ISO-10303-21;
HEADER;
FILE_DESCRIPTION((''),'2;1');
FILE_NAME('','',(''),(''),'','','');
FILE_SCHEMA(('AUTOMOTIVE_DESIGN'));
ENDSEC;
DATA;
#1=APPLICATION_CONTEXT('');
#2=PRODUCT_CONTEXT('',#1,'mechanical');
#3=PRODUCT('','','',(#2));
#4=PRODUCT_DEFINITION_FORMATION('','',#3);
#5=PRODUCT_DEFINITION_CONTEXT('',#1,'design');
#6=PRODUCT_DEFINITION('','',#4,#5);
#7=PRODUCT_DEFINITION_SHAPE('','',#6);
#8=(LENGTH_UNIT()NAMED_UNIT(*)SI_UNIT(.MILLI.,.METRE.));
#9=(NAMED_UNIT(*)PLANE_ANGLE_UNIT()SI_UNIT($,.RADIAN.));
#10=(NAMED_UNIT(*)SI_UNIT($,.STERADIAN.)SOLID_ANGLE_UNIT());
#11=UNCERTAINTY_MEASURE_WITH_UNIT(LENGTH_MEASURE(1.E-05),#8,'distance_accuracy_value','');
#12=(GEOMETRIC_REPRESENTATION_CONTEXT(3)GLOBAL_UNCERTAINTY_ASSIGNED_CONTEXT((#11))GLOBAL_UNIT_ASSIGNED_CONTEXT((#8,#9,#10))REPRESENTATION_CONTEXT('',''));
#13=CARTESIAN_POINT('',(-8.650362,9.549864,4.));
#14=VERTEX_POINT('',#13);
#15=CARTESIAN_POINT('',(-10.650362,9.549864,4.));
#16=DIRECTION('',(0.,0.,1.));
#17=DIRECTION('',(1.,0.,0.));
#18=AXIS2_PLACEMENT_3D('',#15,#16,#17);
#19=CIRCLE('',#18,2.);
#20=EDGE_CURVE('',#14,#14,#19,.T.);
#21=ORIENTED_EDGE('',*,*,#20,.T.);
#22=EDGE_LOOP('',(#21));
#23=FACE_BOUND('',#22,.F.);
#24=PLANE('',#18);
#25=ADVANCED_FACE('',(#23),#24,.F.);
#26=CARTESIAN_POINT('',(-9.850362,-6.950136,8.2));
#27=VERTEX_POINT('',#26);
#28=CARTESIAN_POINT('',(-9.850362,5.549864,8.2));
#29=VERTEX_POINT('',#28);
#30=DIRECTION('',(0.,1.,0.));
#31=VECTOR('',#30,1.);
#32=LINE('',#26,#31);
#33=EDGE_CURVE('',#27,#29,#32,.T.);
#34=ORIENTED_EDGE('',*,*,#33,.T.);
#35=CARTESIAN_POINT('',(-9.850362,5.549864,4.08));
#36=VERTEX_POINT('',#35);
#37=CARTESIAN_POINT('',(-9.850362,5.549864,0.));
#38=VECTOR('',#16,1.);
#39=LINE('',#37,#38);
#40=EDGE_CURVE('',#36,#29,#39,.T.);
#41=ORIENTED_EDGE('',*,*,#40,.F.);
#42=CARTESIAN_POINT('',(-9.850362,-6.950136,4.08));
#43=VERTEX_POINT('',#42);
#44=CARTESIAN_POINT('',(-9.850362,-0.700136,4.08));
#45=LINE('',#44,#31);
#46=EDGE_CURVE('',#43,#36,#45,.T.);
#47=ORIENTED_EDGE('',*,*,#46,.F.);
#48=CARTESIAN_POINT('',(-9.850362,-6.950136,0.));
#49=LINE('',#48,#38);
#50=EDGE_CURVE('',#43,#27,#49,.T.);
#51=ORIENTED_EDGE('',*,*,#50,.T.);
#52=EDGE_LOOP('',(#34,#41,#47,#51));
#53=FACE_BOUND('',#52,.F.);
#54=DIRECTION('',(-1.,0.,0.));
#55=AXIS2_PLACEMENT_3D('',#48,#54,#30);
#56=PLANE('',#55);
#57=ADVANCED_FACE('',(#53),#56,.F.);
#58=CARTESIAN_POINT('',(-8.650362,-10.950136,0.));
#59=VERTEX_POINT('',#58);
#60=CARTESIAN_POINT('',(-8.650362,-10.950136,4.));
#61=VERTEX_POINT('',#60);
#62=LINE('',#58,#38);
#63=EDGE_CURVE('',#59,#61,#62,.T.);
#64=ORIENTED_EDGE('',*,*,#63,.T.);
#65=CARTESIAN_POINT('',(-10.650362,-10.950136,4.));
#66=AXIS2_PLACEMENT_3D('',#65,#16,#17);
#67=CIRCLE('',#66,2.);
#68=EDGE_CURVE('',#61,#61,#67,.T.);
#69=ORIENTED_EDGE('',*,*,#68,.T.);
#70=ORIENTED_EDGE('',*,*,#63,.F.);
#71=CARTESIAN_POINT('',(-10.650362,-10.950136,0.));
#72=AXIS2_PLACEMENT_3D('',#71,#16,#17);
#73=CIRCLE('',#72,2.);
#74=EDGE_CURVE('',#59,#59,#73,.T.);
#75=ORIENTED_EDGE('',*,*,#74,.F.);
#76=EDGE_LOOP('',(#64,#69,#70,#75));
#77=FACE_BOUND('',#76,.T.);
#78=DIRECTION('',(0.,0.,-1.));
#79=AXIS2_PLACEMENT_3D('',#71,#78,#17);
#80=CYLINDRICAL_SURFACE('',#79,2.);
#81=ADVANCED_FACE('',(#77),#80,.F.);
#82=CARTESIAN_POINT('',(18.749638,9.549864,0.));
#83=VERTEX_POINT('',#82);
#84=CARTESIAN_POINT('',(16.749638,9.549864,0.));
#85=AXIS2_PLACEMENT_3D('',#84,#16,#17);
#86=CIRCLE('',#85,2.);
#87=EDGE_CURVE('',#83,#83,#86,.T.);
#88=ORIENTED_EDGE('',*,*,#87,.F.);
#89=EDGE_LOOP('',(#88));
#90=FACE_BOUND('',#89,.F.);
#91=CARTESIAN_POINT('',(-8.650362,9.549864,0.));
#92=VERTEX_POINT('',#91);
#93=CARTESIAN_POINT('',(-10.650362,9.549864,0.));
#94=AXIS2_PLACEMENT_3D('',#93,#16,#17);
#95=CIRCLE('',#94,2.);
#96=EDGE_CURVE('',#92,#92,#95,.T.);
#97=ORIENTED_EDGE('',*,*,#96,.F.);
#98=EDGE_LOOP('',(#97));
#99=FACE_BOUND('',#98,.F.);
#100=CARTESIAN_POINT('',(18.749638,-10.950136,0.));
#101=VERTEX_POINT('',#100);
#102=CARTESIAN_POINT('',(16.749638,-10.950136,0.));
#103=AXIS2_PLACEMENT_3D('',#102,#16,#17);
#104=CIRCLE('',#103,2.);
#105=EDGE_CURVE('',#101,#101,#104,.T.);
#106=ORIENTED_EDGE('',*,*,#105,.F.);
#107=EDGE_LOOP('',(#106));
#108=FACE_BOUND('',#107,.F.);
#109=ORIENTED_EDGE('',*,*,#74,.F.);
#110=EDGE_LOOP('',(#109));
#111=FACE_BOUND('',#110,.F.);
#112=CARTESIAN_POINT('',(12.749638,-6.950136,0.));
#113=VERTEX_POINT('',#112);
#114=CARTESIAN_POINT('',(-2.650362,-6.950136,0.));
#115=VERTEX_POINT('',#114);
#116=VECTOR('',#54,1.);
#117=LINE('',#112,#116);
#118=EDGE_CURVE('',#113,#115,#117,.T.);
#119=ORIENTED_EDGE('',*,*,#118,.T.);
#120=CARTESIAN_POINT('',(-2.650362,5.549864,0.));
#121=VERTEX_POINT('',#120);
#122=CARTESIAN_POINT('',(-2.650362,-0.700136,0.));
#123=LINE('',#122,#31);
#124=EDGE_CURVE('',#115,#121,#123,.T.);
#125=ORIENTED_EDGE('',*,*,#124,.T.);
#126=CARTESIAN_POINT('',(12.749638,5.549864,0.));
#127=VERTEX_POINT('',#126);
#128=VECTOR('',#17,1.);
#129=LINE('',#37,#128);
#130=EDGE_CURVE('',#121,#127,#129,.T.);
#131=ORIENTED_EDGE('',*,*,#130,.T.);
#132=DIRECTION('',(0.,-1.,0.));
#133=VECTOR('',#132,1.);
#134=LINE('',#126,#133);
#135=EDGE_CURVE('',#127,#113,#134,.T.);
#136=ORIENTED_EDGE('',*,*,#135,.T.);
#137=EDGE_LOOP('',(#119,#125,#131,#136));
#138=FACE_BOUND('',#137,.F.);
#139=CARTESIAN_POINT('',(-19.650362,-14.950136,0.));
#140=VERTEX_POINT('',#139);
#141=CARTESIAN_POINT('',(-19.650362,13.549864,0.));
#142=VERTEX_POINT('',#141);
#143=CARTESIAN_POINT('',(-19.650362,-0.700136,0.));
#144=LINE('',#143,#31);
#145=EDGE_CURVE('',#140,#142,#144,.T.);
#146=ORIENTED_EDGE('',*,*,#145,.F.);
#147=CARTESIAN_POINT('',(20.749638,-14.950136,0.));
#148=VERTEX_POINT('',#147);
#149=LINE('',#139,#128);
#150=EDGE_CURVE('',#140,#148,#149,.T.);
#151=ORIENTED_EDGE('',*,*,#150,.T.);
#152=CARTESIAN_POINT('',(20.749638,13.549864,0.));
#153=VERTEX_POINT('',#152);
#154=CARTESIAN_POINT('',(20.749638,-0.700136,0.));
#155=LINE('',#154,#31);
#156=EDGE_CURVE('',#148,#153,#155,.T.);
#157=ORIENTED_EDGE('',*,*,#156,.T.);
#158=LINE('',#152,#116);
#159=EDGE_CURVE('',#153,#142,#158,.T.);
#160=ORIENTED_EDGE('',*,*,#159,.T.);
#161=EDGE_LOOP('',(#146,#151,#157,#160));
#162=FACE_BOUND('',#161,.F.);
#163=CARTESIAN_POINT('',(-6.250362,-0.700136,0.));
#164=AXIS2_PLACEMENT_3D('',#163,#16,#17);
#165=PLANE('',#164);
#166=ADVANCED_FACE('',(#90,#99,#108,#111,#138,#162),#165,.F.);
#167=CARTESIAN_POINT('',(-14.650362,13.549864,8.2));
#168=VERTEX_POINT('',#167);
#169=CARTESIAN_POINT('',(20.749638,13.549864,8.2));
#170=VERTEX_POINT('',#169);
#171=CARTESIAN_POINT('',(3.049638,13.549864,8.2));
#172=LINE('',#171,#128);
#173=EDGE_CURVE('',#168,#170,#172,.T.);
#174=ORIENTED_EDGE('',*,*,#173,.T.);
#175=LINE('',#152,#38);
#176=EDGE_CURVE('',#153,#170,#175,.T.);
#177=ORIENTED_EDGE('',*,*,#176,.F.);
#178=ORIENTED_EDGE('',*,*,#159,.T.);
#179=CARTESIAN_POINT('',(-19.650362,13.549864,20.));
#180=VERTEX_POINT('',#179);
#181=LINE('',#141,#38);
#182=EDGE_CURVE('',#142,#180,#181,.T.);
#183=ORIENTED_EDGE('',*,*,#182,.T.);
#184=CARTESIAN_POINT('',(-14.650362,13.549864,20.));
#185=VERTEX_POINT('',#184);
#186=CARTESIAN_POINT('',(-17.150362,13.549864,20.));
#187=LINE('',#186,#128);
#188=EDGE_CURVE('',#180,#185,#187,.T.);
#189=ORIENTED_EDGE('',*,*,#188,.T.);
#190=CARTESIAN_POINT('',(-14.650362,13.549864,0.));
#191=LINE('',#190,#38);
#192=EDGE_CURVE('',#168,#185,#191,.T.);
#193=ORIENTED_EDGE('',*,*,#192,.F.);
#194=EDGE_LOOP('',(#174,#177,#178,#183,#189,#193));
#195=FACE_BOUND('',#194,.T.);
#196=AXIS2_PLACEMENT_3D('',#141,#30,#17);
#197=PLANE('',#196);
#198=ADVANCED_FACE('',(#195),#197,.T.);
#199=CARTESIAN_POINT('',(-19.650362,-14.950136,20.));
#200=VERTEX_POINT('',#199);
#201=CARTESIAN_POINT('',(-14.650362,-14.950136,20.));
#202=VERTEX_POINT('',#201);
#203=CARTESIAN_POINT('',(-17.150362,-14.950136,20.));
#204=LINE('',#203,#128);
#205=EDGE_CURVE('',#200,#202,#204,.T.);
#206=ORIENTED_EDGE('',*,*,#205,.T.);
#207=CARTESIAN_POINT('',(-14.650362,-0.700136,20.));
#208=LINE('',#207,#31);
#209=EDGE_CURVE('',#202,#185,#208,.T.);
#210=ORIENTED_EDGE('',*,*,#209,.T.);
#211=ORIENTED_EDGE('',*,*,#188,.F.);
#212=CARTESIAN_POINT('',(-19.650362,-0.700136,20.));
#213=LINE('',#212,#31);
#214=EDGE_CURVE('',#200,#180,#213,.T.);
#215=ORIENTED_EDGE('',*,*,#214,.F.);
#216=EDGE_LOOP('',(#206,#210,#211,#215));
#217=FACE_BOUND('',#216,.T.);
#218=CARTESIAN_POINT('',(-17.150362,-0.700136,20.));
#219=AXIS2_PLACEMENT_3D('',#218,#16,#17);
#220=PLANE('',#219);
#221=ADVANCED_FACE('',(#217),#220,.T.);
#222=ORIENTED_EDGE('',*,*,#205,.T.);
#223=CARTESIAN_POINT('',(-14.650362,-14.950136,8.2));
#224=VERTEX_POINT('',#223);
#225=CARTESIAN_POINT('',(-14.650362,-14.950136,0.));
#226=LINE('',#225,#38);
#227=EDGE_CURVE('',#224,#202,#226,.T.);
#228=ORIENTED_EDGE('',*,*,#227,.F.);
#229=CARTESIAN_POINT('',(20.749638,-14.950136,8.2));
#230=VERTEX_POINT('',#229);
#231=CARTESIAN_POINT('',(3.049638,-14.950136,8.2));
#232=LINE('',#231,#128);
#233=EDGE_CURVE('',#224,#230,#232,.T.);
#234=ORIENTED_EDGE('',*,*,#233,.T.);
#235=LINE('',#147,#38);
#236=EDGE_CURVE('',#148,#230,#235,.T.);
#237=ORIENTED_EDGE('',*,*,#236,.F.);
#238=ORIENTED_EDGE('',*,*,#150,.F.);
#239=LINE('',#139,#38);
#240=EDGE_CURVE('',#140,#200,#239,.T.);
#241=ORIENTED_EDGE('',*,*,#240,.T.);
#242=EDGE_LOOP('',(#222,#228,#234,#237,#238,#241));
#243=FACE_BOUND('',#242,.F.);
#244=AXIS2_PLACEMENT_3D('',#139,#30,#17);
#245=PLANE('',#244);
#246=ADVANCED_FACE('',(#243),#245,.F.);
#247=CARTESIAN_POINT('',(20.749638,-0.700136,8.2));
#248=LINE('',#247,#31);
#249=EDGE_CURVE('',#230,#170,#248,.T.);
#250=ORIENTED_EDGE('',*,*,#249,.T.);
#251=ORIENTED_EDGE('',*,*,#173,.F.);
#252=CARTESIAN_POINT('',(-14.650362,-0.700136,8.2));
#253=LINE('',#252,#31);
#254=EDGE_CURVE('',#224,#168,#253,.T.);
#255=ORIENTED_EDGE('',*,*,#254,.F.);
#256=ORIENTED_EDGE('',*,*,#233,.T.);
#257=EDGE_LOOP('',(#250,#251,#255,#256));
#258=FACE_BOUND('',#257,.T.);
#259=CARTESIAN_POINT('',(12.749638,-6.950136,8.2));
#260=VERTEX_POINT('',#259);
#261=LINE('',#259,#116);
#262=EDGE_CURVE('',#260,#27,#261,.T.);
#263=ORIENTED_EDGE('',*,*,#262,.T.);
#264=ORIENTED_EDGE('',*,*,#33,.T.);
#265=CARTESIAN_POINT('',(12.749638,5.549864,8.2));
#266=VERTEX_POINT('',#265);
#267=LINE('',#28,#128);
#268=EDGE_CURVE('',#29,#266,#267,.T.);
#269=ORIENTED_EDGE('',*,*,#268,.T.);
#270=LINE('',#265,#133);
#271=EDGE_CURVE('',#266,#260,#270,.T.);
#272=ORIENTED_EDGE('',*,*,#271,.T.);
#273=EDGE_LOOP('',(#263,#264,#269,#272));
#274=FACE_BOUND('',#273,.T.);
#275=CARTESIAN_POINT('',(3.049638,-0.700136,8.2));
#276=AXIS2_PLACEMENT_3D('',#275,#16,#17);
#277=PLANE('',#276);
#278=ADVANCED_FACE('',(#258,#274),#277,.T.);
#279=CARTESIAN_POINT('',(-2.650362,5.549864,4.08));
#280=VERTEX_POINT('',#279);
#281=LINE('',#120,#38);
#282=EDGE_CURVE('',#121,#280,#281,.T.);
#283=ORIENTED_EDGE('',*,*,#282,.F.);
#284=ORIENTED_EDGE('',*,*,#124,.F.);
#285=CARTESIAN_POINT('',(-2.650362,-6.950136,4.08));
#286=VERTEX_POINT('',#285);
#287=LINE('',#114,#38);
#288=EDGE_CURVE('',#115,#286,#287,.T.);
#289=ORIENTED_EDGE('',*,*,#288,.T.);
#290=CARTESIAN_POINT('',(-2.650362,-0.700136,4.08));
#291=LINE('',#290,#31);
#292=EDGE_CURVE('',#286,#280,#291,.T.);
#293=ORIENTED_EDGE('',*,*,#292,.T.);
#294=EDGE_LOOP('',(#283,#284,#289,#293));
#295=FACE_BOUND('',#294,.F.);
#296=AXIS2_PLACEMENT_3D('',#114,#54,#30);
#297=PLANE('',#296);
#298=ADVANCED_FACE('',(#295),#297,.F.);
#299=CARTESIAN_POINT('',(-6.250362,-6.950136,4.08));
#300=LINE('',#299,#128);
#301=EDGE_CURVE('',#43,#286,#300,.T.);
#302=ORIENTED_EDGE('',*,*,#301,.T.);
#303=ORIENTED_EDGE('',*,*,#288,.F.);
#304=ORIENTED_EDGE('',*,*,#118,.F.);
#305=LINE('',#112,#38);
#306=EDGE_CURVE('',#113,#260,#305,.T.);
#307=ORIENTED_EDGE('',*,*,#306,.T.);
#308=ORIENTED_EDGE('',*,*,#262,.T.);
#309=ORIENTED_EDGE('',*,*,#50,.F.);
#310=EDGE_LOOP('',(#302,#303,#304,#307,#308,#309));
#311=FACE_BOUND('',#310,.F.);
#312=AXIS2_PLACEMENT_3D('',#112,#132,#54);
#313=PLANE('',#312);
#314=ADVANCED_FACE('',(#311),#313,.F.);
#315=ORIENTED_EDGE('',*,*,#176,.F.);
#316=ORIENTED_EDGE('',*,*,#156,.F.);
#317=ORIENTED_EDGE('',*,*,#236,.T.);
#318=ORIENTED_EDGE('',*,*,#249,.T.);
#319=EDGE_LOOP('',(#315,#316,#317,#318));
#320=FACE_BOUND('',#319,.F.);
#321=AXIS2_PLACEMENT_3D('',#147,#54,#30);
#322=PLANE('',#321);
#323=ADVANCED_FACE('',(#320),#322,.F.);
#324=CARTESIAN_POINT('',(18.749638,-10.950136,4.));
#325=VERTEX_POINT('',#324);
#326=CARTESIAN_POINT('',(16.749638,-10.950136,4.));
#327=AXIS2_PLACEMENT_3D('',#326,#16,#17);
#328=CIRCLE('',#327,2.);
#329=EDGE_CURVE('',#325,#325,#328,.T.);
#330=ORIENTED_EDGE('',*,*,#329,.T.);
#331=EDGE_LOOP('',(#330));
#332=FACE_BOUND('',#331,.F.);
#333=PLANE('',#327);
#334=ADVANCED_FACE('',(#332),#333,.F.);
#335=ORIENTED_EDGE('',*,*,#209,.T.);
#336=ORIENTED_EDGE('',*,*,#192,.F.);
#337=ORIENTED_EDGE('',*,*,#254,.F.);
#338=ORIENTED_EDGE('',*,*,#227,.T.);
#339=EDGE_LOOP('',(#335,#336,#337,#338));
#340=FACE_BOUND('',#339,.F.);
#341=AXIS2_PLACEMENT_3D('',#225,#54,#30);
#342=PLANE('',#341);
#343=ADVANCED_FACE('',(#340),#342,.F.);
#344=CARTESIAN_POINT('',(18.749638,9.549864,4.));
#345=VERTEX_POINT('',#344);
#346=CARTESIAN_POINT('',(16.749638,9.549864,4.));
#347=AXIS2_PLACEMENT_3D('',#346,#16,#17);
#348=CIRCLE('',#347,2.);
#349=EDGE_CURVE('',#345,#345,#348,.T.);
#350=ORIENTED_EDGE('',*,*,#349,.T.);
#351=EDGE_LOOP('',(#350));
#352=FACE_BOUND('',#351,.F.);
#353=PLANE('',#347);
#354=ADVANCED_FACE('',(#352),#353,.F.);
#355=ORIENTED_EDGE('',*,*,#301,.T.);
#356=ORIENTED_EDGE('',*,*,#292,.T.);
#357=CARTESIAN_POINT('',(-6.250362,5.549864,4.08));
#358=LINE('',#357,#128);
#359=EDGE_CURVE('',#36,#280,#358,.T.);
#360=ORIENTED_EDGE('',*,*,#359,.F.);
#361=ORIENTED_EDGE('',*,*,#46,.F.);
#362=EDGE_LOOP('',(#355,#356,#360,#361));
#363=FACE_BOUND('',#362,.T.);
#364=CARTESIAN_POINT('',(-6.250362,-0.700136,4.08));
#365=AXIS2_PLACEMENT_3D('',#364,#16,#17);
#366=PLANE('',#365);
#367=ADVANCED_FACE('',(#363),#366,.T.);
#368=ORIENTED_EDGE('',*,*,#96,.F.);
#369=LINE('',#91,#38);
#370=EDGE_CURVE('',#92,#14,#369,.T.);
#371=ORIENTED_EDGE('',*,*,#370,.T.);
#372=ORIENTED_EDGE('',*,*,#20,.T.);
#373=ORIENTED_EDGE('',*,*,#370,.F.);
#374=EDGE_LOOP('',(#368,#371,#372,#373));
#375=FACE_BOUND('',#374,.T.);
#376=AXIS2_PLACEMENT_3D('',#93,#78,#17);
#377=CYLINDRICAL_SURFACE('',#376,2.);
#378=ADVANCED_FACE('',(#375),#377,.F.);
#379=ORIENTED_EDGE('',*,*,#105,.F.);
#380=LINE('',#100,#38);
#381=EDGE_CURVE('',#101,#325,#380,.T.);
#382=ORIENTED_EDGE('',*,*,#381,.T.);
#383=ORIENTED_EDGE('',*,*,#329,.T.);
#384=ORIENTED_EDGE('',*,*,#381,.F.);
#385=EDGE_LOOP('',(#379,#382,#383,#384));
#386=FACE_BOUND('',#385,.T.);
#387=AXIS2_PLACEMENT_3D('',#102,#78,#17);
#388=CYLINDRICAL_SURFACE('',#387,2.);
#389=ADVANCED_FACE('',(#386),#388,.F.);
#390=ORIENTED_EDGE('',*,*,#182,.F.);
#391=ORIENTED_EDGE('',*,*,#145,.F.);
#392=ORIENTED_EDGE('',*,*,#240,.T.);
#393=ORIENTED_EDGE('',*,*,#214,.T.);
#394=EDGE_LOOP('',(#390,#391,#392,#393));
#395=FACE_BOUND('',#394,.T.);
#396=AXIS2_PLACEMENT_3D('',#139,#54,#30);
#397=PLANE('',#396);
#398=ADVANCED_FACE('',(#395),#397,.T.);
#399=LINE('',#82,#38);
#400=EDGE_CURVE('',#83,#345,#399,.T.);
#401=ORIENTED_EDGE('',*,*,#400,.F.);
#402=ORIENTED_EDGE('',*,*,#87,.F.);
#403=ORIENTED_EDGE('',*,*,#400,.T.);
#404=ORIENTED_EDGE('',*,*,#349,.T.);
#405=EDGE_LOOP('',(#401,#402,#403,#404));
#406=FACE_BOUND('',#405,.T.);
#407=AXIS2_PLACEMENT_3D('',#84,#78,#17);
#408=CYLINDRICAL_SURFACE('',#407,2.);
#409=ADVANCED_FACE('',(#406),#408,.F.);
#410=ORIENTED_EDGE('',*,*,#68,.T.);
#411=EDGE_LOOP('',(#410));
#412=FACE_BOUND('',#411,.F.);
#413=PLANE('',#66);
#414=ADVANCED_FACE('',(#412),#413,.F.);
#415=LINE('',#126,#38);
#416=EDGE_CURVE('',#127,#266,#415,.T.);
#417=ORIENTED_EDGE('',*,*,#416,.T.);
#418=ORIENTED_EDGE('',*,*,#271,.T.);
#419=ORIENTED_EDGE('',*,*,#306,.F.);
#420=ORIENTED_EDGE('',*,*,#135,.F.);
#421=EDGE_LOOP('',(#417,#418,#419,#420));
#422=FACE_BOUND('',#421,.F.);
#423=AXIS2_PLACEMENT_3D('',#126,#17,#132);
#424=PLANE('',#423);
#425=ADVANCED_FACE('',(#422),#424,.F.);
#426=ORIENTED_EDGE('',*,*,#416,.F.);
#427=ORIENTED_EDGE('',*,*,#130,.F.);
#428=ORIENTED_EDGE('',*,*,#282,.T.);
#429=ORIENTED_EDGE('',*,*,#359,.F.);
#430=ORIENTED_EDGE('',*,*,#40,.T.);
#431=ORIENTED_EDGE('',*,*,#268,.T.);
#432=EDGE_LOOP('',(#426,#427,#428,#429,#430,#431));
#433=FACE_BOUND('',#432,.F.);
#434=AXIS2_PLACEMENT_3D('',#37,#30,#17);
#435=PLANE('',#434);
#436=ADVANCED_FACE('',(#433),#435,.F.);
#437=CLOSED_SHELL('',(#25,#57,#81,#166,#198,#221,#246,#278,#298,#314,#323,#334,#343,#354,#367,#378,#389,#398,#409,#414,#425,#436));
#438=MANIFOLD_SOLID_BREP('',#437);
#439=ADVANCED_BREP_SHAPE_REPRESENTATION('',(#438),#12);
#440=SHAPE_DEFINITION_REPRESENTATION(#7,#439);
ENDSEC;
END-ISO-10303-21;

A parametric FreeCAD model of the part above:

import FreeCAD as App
import Part
import Sketcher

V = App.Vector
Q = App.Units.Quantity


def add_polygon(sketch, points):
    """Adds a closed chain of lines whose ends are joined by coincident constraints."""
    first, n = sketch.GeometryCount, len(points)
    for a, b in zip(points, points[1:] + points[:1]):
        sketch.addGeometry(Part.LineSegment(App.Vector(*a, 0), App.Vector(*b, 0)), False)
    for i in range(n):
        sketch.addConstraint(Sketcher.Constraint("Coincident", first + i, 2, first + (i + 1) % n, 1))

doc = App.newDocument("Part")
body = doc.addObject("PartDesign::Body", "Body")

sketch1 = body.newObject("Sketcher::SketchObject", "Sketch")
sketch1.AttachmentSupport = (doc.getObject("XY_Plane"), [""])
sketch1.MapMode = "FlatFace"
add_polygon(sketch1, [(-15, 14), (-15, -15), (21, -15), (21, 14)])
add_polygon(sketch1, [(13, -7), (-10, -7), (-10, 6), (13, 6)])
sketch1.addConstraint([
    Sketcher.Constraint("Vertical", 0),
    Sketcher.Constraint("Horizontal", 1),
    Sketcher.Constraint("Vertical", 2),
    Sketcher.Constraint("Horizontal", 3),
    Sketcher.Constraint("Horizontal", 4),
    Sketcher.Constraint("Vertical", 5),
    Sketcher.Constraint("Horizontal", 6),
    Sketcher.Constraint("Vertical", 7),
    Sketcher.Constraint("DistanceX", 1, 1, 1, 2, Q("35.4 mm")),
    Sketcher.Constraint("DistanceX", 4, 2, 4, 1, Q("22.6 mm")),
    Sketcher.Constraint("DistanceY", 0, 2, 0, 1, Q("28.5 mm")),
    Sketcher.Constraint("DistanceY", 5, 1, 5, 2, Q("12.5 mm")),
    Sketcher.Constraint("DistanceY", 0, 2, 4, 2, Q("8 mm")),
    Sketcher.Constraint("DistanceX", 6, 2, 2, 2, Q("8 mm")),
    Sketcher.Constraint("DistanceX", -1, 1, 1, 2, Q("20.749638 mm")),
    Sketcher.Constraint("DistanceY", 0, 2, -1, 1, Q("14.950136 mm")),
])
pad1 = body.newObject("PartDesign::Pad", "Pad")
pad1.Profile = sketch1
pad1.Length = 8.2

sketch2 = body.newObject("Sketcher::SketchObject", "Sketch001")
sketch2.AttachmentSupport = (doc.getObject("XY_Plane"), [""])
sketch2.MapMode = "FlatFace"
add_polygon(sketch2, [(-20, 14), (-20, -15), (-15, -15), (-15, 14)])
sketch2.addConstraint([
    Sketcher.Constraint("Vertical", 0),
    Sketcher.Constraint("Horizontal", 1),
    Sketcher.Constraint("Vertical", 2),
    Sketcher.Constraint("Horizontal", 3),
    Sketcher.Constraint("DistanceX", 1, 1, 1, 2, Q("5 mm")),
    Sketcher.Constraint("DistanceY", 0, 2, 0, 1, Q("28.5 mm")),
    Sketcher.Constraint("DistanceX", 0, 2, -1, 1, Q("19.650362 mm")),
    Sketcher.Constraint("DistanceY", 0, 2, -1, 1, Q("14.950136 mm")),
])
pad2 = body.newObject("PartDesign::Pad", "Pad001")
pad2.Profile = sketch2
pad2.Length = 20

sketch3 = body.newObject("Sketcher::SketchObject", "Sketch002")
sketch3.AttachmentSupport = (doc.getObject("XY_Plane"), [""])
sketch3.MapMode = "FlatFace"
add_polygon(sketch3, [(-10, 6), (-10, -7), (-3, -7), (-3, 6)])
sketch3.addConstraint([
    Sketcher.Constraint("Vertical", 0),
    Sketcher.Constraint("Horizontal", 1),
    Sketcher.Constraint("Vertical", 2),
    Sketcher.Constraint("Horizontal", 3),
    Sketcher.Constraint("DistanceX", 1, 1, 1, 2, Q("7.2 mm")),
    Sketcher.Constraint("DistanceY", 0, 2, 0, 1, Q("12.5 mm")),
    Sketcher.Constraint("DistanceX", 1, 2, -1, 1, Q("2.650362 mm")),
    Sketcher.Constraint("DistanceY", 0, 2, -1, 1, Q("6.950136 mm")),
])
pad3 = body.newObject("PartDesign::Pad", "Pad002")
pad3.Profile = sketch3
pad3.Length = 4.08

sketch4 = body.newObject("Sketcher::SketchObject", "Sketch003")
sketch4.AttachmentSupport = (doc.getObject("XY_Plane"), [""])
sketch4.MapMode = "FlatFace"
sketch4.addGeometry([
    Part.Circle(V(-10.7, -11, 0), V(0, 0, 1), 2),
    Part.Circle(V(16.7, -11, 0), V(0, 0, 1), 2),
    Part.Circle(V(16.7, 9.5, 0), V(0, 0, 1), 2),
    Part.Circle(V(-10.7, 9.5, 0), V(0, 0, 1), 2),
], False)
sketch4.addConstraint([
    Sketcher.Constraint("Equal", 0, 1),
    Sketcher.Constraint("Equal", 1, 2),
    Sketcher.Constraint("Equal", 2, 3),
    Sketcher.Constraint("Horizontal", 0, 3, 1, 3),
    Sketcher.Constraint("Horizontal", 2, 3, 3, 3),
    Sketcher.Constraint("Vertical", 1, 3, 2, 3),
    Sketcher.Constraint("Vertical", 0, 3, 3, 3),
    Sketcher.Constraint("Diameter", 0, Q("4 mm")),
    Sketcher.Constraint("DistanceX", 0, 3, 1, 3, Q("27.4 mm")),
    Sketcher.Constraint("DistanceY", 1, 3, 2, 3, Q("20.5 mm")),
    Sketcher.Constraint("DistanceX", -1, 1, 1, 3, Q("16.749638 mm")),
    Sketcher.Constraint("DistanceY", 0, 3, -1, 1, Q("10.950136 mm")),
])
pocket1 = body.newObject("PartDesign::Pocket", "Pocket")
pocket1.Profile = sketch4
pocket1.Length = 4
pocket1.Reversed = True

doc.recompute()
